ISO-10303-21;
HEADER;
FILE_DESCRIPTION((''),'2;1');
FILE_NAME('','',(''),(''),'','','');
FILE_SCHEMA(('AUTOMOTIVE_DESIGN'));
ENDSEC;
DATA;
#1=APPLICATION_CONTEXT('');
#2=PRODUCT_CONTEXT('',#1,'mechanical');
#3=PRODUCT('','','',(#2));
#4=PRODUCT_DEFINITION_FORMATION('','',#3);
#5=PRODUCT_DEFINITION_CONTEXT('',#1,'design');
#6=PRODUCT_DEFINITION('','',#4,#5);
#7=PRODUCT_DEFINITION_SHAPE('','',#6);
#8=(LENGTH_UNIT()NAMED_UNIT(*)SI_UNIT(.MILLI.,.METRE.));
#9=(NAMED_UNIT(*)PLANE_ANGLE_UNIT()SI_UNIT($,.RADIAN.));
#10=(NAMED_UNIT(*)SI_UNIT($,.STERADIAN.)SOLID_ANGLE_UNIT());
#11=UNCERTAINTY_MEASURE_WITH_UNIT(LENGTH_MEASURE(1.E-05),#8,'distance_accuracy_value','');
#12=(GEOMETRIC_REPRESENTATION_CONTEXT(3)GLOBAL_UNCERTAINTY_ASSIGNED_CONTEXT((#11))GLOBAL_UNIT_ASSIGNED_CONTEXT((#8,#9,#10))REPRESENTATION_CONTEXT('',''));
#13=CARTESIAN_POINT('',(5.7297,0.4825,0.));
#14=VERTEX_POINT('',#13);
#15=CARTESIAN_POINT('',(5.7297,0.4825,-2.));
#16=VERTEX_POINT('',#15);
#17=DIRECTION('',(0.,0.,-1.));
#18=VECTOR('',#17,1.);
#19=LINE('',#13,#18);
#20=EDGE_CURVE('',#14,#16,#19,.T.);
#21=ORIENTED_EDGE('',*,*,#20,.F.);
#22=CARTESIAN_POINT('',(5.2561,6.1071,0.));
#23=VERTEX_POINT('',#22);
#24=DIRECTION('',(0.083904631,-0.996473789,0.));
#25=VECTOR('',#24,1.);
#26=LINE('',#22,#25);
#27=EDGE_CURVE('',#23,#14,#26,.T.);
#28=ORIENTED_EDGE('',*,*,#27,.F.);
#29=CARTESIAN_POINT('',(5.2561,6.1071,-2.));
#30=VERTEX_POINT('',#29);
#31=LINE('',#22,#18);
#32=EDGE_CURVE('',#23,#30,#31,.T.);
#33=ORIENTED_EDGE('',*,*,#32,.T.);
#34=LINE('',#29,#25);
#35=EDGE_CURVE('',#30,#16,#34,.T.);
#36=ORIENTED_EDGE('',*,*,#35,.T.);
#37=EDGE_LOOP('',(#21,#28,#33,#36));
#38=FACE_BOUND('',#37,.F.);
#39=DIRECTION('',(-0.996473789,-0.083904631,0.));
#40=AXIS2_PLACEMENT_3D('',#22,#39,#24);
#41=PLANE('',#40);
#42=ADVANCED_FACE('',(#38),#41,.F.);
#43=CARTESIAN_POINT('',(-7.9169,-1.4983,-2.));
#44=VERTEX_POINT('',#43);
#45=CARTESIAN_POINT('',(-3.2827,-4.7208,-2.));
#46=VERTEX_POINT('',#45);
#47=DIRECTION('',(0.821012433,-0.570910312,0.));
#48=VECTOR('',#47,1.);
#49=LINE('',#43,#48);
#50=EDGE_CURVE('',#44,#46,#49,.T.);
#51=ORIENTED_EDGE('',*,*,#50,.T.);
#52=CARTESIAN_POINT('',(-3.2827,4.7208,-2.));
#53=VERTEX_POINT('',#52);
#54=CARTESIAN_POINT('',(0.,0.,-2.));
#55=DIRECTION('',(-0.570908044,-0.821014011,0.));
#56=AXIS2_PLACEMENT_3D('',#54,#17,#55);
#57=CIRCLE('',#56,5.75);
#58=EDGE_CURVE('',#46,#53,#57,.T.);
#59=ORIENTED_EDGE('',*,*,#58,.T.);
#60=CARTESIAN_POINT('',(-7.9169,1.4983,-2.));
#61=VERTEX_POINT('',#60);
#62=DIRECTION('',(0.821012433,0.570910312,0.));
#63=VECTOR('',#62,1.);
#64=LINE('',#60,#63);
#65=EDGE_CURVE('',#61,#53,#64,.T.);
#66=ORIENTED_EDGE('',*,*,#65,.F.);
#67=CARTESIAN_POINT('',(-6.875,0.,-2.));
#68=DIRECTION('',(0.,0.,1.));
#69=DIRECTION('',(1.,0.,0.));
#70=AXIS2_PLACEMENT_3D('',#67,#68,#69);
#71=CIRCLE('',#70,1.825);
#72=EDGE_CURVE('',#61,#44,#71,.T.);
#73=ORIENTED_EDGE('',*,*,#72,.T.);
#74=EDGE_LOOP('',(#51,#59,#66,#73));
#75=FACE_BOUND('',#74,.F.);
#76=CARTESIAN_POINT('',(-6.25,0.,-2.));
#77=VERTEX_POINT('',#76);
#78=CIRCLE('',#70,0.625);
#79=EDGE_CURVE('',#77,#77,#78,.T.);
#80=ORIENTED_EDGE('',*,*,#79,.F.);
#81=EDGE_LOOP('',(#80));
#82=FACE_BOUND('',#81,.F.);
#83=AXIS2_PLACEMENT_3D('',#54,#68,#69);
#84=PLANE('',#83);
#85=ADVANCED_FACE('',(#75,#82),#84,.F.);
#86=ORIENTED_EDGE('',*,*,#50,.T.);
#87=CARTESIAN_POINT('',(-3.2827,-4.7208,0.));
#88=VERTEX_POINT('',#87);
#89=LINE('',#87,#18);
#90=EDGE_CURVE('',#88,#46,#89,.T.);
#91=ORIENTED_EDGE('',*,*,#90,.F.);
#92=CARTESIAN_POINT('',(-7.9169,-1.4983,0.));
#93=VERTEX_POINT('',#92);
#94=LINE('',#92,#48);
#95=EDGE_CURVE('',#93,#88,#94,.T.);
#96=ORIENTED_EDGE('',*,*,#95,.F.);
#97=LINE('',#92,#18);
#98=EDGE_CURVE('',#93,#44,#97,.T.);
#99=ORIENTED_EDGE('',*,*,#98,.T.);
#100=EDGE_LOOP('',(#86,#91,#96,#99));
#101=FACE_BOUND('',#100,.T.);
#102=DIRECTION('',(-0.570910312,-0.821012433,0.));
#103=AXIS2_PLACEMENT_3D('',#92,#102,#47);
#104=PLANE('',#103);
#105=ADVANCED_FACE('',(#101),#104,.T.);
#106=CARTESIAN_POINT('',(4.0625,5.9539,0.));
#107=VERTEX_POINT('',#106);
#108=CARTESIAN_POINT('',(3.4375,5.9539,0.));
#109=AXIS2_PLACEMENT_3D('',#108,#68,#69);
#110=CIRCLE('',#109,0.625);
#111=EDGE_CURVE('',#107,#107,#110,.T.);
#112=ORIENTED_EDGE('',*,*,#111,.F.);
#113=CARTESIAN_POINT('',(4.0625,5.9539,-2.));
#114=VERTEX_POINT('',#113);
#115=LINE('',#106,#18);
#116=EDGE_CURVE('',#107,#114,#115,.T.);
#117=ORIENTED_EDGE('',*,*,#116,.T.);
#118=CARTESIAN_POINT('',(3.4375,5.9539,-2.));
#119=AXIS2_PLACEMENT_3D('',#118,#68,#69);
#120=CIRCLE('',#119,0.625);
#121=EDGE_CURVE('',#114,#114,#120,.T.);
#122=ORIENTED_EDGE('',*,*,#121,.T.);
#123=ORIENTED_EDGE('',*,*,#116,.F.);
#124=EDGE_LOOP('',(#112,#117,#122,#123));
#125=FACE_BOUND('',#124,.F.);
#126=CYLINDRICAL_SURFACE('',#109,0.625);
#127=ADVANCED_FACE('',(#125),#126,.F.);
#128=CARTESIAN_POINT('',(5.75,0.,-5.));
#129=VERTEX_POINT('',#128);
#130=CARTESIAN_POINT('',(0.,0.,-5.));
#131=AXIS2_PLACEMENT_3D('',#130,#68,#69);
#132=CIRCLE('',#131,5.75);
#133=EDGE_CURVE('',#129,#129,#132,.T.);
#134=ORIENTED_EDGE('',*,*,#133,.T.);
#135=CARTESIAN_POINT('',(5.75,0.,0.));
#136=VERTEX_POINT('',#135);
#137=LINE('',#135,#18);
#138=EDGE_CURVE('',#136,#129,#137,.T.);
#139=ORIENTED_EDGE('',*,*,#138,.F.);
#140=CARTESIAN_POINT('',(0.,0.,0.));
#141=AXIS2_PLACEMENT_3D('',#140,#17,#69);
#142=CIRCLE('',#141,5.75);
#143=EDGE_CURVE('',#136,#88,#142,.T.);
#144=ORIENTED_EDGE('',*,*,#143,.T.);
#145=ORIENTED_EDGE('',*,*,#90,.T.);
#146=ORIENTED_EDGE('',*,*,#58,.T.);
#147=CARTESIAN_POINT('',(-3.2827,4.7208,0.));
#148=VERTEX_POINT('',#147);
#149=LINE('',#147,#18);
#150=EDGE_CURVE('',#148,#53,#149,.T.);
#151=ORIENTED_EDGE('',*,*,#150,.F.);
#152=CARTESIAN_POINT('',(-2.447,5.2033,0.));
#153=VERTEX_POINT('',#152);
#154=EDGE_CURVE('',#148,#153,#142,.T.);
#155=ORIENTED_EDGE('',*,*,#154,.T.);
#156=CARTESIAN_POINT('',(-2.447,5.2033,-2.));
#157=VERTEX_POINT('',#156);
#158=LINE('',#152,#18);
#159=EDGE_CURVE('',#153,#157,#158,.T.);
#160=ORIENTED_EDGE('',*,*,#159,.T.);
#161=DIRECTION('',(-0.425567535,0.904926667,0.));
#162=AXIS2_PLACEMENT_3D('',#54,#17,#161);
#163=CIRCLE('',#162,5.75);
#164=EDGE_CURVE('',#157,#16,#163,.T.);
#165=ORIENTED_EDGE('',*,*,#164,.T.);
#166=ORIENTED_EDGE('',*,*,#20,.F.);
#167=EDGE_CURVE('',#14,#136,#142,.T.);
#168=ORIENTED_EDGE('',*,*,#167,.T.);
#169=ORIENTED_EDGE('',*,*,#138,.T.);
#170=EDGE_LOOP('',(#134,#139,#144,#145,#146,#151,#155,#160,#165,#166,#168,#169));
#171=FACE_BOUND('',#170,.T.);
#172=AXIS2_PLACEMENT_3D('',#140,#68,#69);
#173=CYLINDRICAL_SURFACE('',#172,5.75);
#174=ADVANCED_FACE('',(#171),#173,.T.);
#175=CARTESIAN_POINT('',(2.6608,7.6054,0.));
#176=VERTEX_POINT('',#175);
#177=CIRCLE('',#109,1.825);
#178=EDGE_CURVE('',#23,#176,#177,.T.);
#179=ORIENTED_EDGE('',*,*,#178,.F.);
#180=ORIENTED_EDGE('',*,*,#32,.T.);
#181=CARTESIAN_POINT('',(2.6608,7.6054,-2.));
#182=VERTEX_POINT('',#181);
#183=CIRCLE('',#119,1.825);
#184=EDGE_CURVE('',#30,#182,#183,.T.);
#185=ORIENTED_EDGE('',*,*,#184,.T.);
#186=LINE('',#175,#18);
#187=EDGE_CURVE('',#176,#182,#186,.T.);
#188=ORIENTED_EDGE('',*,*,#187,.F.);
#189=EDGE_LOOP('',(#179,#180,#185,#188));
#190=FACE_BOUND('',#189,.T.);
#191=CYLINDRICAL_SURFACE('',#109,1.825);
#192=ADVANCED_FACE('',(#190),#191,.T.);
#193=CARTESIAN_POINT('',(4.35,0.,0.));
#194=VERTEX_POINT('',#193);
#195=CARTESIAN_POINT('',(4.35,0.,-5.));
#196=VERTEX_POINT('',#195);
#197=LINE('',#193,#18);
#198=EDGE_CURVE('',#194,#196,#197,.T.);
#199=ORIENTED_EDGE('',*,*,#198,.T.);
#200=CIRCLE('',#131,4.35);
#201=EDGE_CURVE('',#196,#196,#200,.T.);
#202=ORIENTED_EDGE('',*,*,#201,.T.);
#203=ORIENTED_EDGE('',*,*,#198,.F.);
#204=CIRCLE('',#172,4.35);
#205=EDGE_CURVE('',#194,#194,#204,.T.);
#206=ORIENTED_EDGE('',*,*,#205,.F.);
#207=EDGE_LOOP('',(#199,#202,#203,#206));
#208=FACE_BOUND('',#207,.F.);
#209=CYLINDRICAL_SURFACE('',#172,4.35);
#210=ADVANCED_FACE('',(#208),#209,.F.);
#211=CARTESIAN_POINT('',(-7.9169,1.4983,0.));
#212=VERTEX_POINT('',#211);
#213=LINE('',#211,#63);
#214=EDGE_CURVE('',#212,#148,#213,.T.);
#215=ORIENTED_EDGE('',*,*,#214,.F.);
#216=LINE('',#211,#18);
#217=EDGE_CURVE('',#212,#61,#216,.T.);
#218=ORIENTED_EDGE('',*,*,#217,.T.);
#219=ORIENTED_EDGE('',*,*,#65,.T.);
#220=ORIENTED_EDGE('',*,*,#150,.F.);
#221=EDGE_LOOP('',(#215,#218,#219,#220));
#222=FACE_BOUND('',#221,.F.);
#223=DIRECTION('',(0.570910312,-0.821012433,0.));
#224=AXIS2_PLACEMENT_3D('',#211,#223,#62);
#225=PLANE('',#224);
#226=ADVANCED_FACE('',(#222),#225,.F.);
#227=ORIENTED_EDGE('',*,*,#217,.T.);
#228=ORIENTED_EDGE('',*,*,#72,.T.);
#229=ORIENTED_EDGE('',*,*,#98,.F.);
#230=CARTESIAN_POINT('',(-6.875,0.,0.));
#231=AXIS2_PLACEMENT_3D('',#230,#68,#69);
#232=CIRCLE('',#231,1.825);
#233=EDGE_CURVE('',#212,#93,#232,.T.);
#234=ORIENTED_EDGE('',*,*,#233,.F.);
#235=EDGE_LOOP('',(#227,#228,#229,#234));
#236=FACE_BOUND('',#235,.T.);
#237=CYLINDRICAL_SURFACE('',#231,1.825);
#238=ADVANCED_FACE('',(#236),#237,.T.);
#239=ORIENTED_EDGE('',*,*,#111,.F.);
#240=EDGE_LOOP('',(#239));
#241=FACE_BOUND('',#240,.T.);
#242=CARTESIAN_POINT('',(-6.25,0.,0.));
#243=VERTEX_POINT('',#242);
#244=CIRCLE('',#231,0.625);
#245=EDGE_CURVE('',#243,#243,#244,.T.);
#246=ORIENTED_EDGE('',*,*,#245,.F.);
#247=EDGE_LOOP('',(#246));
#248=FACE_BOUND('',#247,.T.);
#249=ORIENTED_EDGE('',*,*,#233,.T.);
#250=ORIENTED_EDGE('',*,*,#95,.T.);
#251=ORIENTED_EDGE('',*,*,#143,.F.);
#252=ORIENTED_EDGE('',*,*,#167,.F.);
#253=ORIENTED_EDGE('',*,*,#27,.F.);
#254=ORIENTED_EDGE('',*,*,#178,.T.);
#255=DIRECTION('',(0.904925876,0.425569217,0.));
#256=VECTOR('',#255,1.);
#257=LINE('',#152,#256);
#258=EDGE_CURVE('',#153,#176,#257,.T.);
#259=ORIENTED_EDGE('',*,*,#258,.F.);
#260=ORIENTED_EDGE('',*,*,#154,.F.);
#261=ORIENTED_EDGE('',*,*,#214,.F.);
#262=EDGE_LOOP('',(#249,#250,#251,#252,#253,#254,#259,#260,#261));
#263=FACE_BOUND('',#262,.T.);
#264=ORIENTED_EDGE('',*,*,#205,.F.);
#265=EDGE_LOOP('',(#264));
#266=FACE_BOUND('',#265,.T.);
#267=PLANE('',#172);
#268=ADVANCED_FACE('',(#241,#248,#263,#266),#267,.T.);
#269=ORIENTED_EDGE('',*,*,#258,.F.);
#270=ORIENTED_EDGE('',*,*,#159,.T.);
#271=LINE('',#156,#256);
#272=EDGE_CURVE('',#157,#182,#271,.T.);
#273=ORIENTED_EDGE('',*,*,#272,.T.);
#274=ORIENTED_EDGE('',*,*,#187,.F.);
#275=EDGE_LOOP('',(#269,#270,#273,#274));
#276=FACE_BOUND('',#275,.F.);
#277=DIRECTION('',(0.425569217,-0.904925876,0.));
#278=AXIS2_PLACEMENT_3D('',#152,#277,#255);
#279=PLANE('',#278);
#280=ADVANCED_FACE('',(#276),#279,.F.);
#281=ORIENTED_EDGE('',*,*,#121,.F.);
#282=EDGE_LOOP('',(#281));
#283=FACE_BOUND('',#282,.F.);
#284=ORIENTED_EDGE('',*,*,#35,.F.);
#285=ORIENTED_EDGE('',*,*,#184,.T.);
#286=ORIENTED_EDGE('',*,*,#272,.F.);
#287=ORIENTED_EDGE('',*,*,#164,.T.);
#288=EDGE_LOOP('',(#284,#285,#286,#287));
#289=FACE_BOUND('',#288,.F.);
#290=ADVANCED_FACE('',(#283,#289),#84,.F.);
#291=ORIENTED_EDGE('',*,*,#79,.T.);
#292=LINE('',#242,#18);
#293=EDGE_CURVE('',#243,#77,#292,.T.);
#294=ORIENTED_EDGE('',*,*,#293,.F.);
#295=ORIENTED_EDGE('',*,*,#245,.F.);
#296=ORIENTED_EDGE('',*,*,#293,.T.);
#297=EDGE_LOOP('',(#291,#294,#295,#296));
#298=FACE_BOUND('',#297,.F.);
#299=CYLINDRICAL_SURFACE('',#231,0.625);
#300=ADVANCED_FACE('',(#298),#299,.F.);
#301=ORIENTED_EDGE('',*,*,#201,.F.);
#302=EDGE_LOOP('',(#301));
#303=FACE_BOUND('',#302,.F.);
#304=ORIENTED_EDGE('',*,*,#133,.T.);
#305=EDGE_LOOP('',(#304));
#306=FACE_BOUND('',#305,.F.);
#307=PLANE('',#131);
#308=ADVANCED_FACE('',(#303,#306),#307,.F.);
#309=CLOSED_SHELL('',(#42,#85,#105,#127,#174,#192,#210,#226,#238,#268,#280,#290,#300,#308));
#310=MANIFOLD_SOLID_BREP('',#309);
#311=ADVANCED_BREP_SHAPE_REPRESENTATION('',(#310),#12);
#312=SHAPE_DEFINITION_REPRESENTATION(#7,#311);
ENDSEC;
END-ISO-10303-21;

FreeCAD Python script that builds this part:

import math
import FreeCAD as App
import Part
import Sketcher

doc = App.newDocument("Part")
body = doc.addObject("PartDesign::Body", "Body")

# Sketch on XY plane
sketch1 = body.newObject("Sketcher::SketchObject", "Sketch")
sketch1.AttachmentSupport = (doc.getObject("XY_Plane"), [""])
sketch1.MapMode = "FlatFace"
sketch1.addGeometry([
    Part.Circle(App.Vector(0, 0, 0), App.Vector(0, 0, 1), 5.8),
    Part.Circle(App.Vector(0, 0, 0), App.Vector(0, 0, 1), 4.3),
], False)
sketch1.addConstraint([
    Sketcher.Constraint("Coincident", 0, 3, -1, 1),
    Sketcher.Constraint("Coincident", 1, 3, -1, 1),
    Sketcher.Constraint("Diameter", 0, 11.5),
    Sketcher.Constraint("Diameter", 1, 8.7),
])
pad1 = body.newObject("PartDesign::Pad", "Pad")
pad1.Profile = sketch1
pad1.Length = 5
pad1.Reversed = True

# Sketch on XY plane
sketch2 = body.newObject("Sketcher::SketchObject", "Sketch001")
sketch2.AttachmentSupport = (doc.getObject("XY_Plane"), [""])
sketch2.MapMode = "FlatFace"
sketch2.addGeometry([
    Part.LineSegment(App.Vector(-7.9, -1.5, 0), App.Vector(-3.3, -4.7, 0)),  # 0
    Part.ArcOfCircle(Part.Circle(App.Vector(0, 0, 0), App.Vector(0, 0, 1), 5.8), math.radians(125), math.radians(235)),  # 1
    Part.LineSegment(App.Vector(-3.3, 4.7, 0), App.Vector(-7.9, 1.5, 0)),  # 2
    Part.ArcOfCircle(Part.Circle(App.Vector(-6.9, 0, 0), App.Vector(0, 0, 1), 1.8), math.radians(125), math.radians(235)),  # 3
    Part.Circle(App.Vector(-6.9, 0, 0), App.Vector(0, 0, 1), 0.6),  # 4
], False)
sketch2.addConstraint([
    Sketcher.Constraint("Tangent", 0, 2, 1, 2),
    Sketcher.Constraint("Tangent", 1, 1, 2, 1),
    Sketcher.Constraint("Tangent", 2, 2, 3, 1),
    Sketcher.Constraint("Tangent", 3, 2, 0, 1),
    Sketcher.Constraint("Coincident", 1, 3, -1, 1),
    Sketcher.Constraint("Coincident", 4, 3, 3, 3),
    Sketcher.Constraint("PointOnObject", 3, 3, -1),
    Sketcher.Constraint("Diameter", 4, 1.25),
    Sketcher.Constraint("Radius", 1, 5.75),
    Sketcher.Constraint("Radius", 3, 1.825),
    Sketcher.Constraint("DistanceX", 3, 3, -1, 1, 6.875),
])
pad2 = body.newObject("PartDesign::Pad", "Pad001")
pad2.Profile = sketch2
pad2.Length = 2
pad2.Reversed = True

# Sketch on XY plane
sketch3 = body.newObject("Sketcher::SketchObject", "Sketch002")
sketch3.AttachmentSupport = (doc.getObject("XY_Plane"), [""])
sketch3.MapMode = "FlatFace"
sketch3.addGeometry([
    Part.LineSegment(App.Vector(5.7, 0.5, 0), App.Vector(5.3, 6.1, 0)),  # 0
    Part.ArcOfCircle(Part.Circle(App.Vector(3.4, 6, 0), App.Vector(0, 0, 1), 1.8), math.radians(5), math.radians(115)),  # 1
    Part.LineSegment(App.Vector(2.7, 7.6, 0), App.Vector(-2.4, 5.2, 0)),  # 2
    Part.ArcOfCircle(Part.Circle(App.Vector(0, 0, 0), App.Vector(0, 0, 1), 5.8), math.radians(5), math.radians(115)),  # 3
    Part.Circle(App.Vector(3.4, 6, 0), App.Vector(0, 0, 1), 0.6),  # 4
], False)
sketch3.addConstraint([
    Sketcher.Constraint("Tangent", 0, 2, 1, 1),
    Sketcher.Constraint("Tangent", 1, 2, 2, 1),
    Sketcher.Constraint("Tangent", 2, 2, 3, 2),
    Sketcher.Constraint("Tangent", 3, 1, 0, 1),
    Sketcher.Constraint("Coincident", 3, 3, -1, 1),
    Sketcher.Constraint("Coincident", 4, 3, 1, 3),
    Sketcher.Constraint("Diameter", 4, 1.25),
    Sketcher.Constraint("Radius", 3, 5.75),
    Sketcher.Constraint("Radius", 1, 1.825),
    Sketcher.Constraint("DistanceY", -1, 1, 1, 3, 5.954),
    Sketcher.Constraint("DistanceX", -1, 1, 0, 2, 5.256),
])
pad3 = body.newObject("PartDesign::Pad", "Pad002")
pad3.Profile = sketch3
pad3.Length = 2
pad3.Reversed = True

doc.recompute()
